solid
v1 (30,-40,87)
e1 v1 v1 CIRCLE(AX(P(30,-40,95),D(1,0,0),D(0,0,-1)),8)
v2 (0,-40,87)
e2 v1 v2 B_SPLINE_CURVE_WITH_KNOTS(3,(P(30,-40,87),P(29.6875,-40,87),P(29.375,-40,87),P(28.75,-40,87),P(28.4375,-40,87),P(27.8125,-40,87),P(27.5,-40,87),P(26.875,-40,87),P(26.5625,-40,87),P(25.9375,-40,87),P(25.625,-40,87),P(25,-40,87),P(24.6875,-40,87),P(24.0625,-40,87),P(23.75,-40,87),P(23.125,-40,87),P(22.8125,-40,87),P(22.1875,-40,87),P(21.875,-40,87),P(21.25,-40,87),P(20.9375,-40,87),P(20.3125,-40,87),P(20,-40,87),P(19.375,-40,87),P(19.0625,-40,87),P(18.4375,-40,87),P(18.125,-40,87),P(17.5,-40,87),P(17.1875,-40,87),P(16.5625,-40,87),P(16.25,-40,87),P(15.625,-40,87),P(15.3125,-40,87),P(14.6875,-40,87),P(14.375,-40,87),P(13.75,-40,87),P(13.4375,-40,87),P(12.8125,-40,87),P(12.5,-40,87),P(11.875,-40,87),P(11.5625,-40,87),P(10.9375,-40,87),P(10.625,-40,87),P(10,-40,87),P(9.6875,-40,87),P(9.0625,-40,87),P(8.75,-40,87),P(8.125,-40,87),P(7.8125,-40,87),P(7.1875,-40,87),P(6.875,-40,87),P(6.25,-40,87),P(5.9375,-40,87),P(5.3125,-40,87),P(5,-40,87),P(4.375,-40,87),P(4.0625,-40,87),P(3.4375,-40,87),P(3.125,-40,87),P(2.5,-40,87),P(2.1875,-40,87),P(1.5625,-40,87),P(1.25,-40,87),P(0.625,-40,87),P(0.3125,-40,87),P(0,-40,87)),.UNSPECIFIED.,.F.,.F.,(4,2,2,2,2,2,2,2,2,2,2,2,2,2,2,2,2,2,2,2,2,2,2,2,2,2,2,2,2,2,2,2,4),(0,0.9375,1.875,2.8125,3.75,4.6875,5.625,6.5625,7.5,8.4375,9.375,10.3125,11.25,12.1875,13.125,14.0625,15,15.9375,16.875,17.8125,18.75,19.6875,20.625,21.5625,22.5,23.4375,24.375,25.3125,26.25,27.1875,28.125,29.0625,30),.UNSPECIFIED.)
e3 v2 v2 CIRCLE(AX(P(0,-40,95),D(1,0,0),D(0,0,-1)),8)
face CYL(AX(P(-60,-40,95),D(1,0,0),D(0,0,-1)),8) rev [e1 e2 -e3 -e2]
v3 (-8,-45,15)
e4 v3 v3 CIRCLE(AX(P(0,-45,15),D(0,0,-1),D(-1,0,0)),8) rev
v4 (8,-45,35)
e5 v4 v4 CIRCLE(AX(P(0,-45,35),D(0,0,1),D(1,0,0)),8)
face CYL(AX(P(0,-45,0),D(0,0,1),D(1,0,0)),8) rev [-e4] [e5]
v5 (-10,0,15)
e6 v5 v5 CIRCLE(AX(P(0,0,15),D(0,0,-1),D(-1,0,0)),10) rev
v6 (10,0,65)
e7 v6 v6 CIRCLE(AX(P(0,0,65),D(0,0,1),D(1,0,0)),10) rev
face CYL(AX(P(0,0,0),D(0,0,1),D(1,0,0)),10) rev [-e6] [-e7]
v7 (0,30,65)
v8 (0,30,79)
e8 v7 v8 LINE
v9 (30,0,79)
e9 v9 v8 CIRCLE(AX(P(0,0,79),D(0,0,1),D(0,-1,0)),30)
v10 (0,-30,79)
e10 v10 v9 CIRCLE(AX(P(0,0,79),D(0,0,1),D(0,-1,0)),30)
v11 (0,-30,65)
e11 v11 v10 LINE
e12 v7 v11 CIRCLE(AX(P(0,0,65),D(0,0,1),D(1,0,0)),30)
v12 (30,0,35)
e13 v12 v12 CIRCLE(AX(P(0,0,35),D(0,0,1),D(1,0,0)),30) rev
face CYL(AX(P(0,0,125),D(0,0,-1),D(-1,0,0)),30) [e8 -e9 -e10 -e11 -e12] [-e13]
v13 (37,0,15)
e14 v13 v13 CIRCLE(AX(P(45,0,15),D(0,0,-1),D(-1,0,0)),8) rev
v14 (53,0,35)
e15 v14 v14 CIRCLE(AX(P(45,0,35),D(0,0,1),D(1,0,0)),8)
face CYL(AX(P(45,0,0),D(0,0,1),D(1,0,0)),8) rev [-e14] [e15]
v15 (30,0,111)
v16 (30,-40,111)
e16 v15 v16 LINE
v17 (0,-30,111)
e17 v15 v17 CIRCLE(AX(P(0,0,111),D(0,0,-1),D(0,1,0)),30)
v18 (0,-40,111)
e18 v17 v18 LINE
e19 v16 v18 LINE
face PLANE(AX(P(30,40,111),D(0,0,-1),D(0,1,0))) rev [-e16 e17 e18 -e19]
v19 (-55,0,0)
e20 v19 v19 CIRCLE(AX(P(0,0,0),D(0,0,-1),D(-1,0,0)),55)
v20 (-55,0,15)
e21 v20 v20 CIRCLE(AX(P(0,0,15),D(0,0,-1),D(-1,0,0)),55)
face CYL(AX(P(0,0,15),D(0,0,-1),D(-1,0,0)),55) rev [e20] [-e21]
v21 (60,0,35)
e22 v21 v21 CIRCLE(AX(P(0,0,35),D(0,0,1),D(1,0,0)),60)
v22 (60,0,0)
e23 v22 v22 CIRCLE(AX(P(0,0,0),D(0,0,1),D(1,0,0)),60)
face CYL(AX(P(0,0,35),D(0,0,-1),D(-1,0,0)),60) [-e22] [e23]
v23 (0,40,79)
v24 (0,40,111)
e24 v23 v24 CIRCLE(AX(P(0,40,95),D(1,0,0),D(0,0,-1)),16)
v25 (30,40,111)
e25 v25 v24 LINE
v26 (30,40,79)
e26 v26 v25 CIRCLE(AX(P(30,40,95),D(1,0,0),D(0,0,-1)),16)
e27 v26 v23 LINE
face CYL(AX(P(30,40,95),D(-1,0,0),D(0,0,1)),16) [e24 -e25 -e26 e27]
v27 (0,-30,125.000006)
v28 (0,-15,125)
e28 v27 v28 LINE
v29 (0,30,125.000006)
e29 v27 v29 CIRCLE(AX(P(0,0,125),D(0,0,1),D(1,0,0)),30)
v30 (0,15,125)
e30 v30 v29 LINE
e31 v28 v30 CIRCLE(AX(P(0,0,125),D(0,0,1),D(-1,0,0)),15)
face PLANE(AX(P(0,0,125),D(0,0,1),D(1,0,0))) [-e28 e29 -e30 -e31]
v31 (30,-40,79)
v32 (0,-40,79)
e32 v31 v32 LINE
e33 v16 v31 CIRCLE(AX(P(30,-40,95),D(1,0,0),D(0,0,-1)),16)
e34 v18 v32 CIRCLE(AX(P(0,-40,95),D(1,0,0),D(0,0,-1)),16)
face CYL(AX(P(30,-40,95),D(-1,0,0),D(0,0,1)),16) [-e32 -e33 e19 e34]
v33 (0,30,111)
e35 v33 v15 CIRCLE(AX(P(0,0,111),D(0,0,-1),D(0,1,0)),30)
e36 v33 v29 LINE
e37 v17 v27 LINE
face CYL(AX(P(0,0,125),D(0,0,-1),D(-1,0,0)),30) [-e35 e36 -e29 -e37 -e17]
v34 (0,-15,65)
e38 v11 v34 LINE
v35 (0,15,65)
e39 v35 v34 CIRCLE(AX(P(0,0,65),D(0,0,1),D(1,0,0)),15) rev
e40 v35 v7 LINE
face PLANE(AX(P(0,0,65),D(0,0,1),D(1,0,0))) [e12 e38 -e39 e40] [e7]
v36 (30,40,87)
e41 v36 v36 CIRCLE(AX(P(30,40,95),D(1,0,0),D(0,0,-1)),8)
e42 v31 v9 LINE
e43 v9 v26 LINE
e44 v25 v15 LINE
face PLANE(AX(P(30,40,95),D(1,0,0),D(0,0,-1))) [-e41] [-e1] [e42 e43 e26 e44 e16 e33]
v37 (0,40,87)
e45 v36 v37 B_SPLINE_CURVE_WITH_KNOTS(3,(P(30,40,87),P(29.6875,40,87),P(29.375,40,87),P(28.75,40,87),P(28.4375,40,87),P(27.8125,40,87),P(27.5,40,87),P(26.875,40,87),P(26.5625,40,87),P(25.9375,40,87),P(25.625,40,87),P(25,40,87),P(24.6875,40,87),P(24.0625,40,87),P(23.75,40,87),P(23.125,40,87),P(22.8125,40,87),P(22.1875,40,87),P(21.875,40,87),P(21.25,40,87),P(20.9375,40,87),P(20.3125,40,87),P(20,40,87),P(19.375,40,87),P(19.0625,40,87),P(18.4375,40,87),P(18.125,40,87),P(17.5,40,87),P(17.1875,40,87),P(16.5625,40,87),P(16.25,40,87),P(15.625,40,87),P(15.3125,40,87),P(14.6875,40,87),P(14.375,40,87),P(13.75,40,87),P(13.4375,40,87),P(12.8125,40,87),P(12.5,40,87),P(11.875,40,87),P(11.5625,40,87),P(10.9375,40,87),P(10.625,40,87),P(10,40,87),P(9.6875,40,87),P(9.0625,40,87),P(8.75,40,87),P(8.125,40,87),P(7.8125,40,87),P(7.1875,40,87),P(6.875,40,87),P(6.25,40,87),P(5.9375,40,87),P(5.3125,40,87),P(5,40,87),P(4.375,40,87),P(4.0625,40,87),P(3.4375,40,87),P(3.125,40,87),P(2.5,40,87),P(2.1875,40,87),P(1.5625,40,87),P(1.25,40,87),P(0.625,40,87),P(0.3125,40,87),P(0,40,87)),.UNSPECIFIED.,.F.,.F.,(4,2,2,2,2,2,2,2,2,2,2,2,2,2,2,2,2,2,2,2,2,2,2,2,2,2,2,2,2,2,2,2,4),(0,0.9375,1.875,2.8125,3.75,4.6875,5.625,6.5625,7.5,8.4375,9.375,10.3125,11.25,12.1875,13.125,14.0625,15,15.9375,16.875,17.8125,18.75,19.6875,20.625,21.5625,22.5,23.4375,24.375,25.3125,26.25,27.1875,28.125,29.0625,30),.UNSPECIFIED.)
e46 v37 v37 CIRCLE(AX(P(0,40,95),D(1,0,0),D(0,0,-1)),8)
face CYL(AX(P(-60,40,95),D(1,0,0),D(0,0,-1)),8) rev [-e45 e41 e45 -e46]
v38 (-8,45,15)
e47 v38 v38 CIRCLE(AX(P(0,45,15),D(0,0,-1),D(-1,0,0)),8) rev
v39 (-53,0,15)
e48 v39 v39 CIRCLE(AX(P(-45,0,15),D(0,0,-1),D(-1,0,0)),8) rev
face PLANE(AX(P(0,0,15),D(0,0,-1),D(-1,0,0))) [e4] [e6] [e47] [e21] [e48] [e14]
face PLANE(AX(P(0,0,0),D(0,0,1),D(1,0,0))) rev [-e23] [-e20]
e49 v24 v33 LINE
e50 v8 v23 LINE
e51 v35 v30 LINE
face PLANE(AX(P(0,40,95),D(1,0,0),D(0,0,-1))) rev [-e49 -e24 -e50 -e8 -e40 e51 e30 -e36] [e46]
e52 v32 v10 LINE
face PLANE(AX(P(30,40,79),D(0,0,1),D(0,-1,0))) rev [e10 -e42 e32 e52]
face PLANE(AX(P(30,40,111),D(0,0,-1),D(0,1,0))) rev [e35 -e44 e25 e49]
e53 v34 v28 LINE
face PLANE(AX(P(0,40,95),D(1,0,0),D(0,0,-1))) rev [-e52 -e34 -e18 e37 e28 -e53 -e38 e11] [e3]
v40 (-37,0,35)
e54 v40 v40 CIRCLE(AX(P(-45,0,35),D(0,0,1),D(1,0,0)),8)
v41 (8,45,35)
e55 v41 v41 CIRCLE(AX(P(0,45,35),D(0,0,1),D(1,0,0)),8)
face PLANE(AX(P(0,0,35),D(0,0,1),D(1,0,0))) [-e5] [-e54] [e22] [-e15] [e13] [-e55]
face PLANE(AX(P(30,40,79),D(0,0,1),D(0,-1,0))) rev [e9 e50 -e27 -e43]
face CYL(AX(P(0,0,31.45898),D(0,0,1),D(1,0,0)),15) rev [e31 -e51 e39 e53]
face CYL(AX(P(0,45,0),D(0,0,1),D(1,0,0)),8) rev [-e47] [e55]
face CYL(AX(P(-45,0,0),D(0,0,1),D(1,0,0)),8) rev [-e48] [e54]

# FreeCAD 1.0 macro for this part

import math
import FreeCAD as App
import Part
import Sketcher

V = App.Vector
Q = App.Units.Quantity

doc = App.newDocument("Part")
body = doc.addObject("PartDesign::Body", "Body")

sketch1 = doc.addObject("Sketcher::SketchObject", "Sketch")
body.addObject(sketch1)
sketch1.AttachmentSupport = (doc.XY_Plane, [""])
sketch1.MapMode = "FlatFace"
sketch1.addGeometry(Part.Circle(V(0, 0, 0), V(0, 0, 1), 60), False)
sketch1.addConstraint([
    Sketcher.Constraint("Coincident", 0, 3, -1, 1),
    Sketcher.Constraint("Diameter", 0, Q("120 mm")),
])
pad1 = doc.addObject("PartDesign::Pad", "Pad")
body.addObject(pad1)
pad1.Profile = sketch1
pad1.Length = 35

sketch2 = doc.addObject("Sketcher::SketchObject", "Sketch001")
body.addObject(sketch2)
sketch2.AttachmentSupport = (doc.XY_Plane, [""])
sketch2.MapMode = "FlatFace"
sketch2.addGeometry(Part.Circle(V(0, 0, 0), V(0, 0, 1), 30), False)
sketch2.addConstraint([
    Sketcher.Constraint("Coincident", 0, 3, -1, 1),
    Sketcher.Constraint("Diameter", 0, Q("60 mm")),
])
pad2 = doc.addObject("PartDesign::Pad", "Pad001")
body.addObject(pad2)
pad2.Profile = sketch2
pad2.Length = 125

sketch3 = doc.addObject("Sketcher::SketchObject", "Sketch002")
body.addObject(sketch3)
sketch3.AttachmentSupport = (doc.YZ_Plane, [""])
sketch3.MapMode = "FlatFace"
sketch3.addGeometry([
    Part.LineSegment(V(-40, 79, 0), V(40, 79, 0)),
    Part.ArcOfCircle(Part.Circle(V(40, 95, 0), V(0, 0, 1), 16), math.radians(-90), math.radians(90)),
    Part.LineSegment(V(40, 111, 0), V(-40, 111, 0)),
    Part.ArcOfCircle(Part.Circle(V(-40, 95, 0), V(0, 0, 1), 16), math.radians(90), math.radians(270)),
], False)
sketch3.addConstraint([
    Sketcher.Constraint("Tangent", 0, 2, 1, 1),
    Sketcher.Constraint("Tangent", 1, 2, 2, 1),
    Sketcher.Constraint("Tangent", 2, 2, 3, 1),
    Sketcher.Constraint("Tangent", 3, 2, 0, 1),
    Sketcher.Constraint("Horizontal", 0),
    Sketcher.Constraint("Horizontal", 2),
    Sketcher.Constraint("Radius", 1, Q("16 mm")),
    Sketcher.Constraint("DistanceX", 0, 1, 0, 2, Q("80 mm")),
    Sketcher.Constraint("DistanceX", -1, 1, 1, 3, Q("40 mm")),
    Sketcher.Constraint("DistanceY", -1, 1, 1, 3, Q("95 mm")),
])
pad3 = doc.addObject("PartDesign::Pad", "Pad002")
body.addObject(pad3)
pad3.Profile = sketch3
pad3.Length = 30

sketch4 = doc.addObject("Sketcher::SketchObject", "Sketch003")
body.addObject(sketch4)
sketch4.AttachmentSupport = (doc.XY_Plane, [""])
sketch4.MapMode = "FlatFace"
sketch4.AttachmentOffset = App.Placement(V(0, 0, 125), App.Rotation())
sketch4.addGeometry(Part.Circle(V(0, 0, 0), V(0, 0, 1), 10), False)
sketch4.addConstraint([
    Sketcher.Constraint("Coincident", 0, 3, -1, 1),
    Sketcher.Constraint("Diameter", 0, Q("20 mm")),
])
pocket1 = doc.addObject("PartDesign::Pocket", "Pocket")
body.addObject(pocket1)
pocket1.Profile = sketch4
pocket1.Type = "ThroughAll"
pocket1.Midplane = True

sketch5 = doc.addObject("Sketcher::SketchObject", "Sketch004")
body.addObject(sketch5)
sketch5.AttachmentSupport = (doc.XY_Plane, [""])
sketch5.MapMode = "FlatFace"
sketch5.AttachmentOffset = App.Placement(V(0, 0, 125), App.Rotation())
sketch5.addGeometry([
    Part.LineSegment(V(0, -30, 0), V(0, 30, 0)),
    Part.ArcOfCircle(Part.Circle(V(0, 0, 0), V(0, 0, 1), 30), math.radians(90), math.radians(270)),
], False)
sketch5.addConstraint([
    Sketcher.Constraint("Coincident", 0, 1, 1, 2),
    Sketcher.Constraint("Coincident", 1, 1, 0, 2),
    Sketcher.Constraint("Vertical", 0),
    Sketcher.Constraint("Coincident", 1, 3, -1, 1),
    Sketcher.Constraint("PointOnObject", 0, 1, -2),
    Sketcher.Constraint("Radius", 1, Q("30 mm")),
])
pocket2 = doc.addObject("PartDesign::Pocket", "Pocket001")
body.addObject(pocket2)
pocket2.Profile = sketch5
pocket2.Type = "TwoLengths"
pocket2.Length = 152.079449
pocket2.Length2 = 60
pocket2.Reversed = True

sketch6 = doc.addObject("Sketcher::SketchObject", "Sketch005")
body.addObject(sketch6)
sketch6.AttachmentSupport = (doc.XY_Plane, [""])
sketch6.MapMode = "FlatFace"
sketch6.AttachmentOffset = App.Placement(V(0, 0, 125), App.Rotation())
sketch6.addGeometry([
    Part.LineSegment(V(0, 15, 0), V(0, 10, 0)),
    Part.ArcOfCircle(Part.Circle(V(0, 0, 0), V(0, 0, 1), 10), math.radians(-90), math.radians(90)),
    Part.LineSegment(V(0, -10, 0), V(0, -15, 0)),
    Part.ArcOfCircle(Part.Circle(V(0, 0, 0), V(0, 0, 1), 15), math.radians(-90), math.radians(90)),
], False)
sketch6.addConstraint([
    Sketcher.Constraint("Coincident", 0, 2, 1, 2),
    Sketcher.Constraint("Coincident", 1, 1, 2, 1),
    Sketcher.Constraint("Coincident", 2, 2, 3, 1),
    Sketcher.Constraint("Coincident", 3, 2, 0, 1),
    Sketcher.Constraint("Vertical", 0),
    Sketcher.Constraint("Vertical", 2),
    Sketcher.Constraint("Coincident", 1, 3, -1, 1),
    Sketcher.Constraint("Coincident", 3, 3, -1, 1),
    Sketcher.Constraint("PointOnObject", 0, 2, -2),
    Sketcher.Constraint("PointOnObject", 1, 1, -2),
    Sketcher.Constraint("Radius", 1, Q("10 mm")),
    Sketcher.Constraint("Radius", 3, Q("15 mm")),
])
pocket3 = doc.addObject("PartDesign::Pocket", "Pocket002")
body.addObject(pocket3)
pocket3.Profile = sketch6
pocket3.Length = 60

sketch7 = doc.addObject("Sketcher::SketchObject", "Sketch006")
body.addObject(sketch7)
sketch7.AttachmentSupport = (doc.YZ_Plane, [""])
sketch7.MapMode = "FlatFace"
sketch7.AttachmentOffset = App.Placement(V(0, 0, 30), App.Rotation())
sketch7.addGeometry([
    Part.Circle(V(-40, 95, 0), V(0, 0, 1), 8),
    Part.Circle(V(40, 95, 0), V(0, 0, 1), 8),
], False)
sketch7.addConstraint([
    Sketcher.Constraint("Equal", 0, 1),
    Sketcher.Constraint("Symmetric", 0, 3, 1, 3, -2),
    Sketcher.Constraint("Diameter", 0, Q("16 mm")),
    Sketcher.Constraint("DistanceX", 0, 3, -1, 1, Q("40 mm")),
    Sketcher.Constraint("DistanceY", -1, 1, 0, 3, Q("95 mm")),
])
pocket4 = doc.addObject("PartDesign::Pocket", "Pocket003")
body.addObject(pocket4)
pocket4.Profile = sketch7
pocket4.Type = "ThroughAll"

sketch8 = doc.addObject("Sketcher::SketchObject", "Sketch007")
body.addObject(sketch8)
sketch8.AttachmentSupport = (doc.XY_Plane, [""])
sketch8.MapMode = "FlatFace"
sketch8.AttachmentOffset = App.Placement(V(0, 0, 35), App.Rotation())
sketch8.addGeometry([
    Part.Circle(V(-45, 0, 0), V(0, 0, 1), 8),
    Part.Circle(V(0, 45, 0), V(0, 0, 1), 8),
    Part.Circle(V(45, 0, 0), V(0, 0, 1), 8),
    Part.Circle(V(0, -45, 0), V(0, 0, 1), 8),
], False)
sketch8.addConstraint([
    Sketcher.Constraint("Equal", 0, 1),
    Sketcher.Constraint("Equal", 1, 2),
    Sketcher.Constraint("Equal", 2, 3),
    Sketcher.Constraint("Symmetric", 0, 3, 2, 3, -1, 1),
    Sketcher.Constraint("Symmetric", 1, 3, 3, 3, -1, 1),
    Sketcher.Constraint("PointOnObject", 0, 3, -1),
    Sketcher.Constraint("PointOnObject", 1, 3, -2),
    Sketcher.Constraint("Diameter", 0, Q("16 mm")),
    Sketcher.Constraint("DistanceX", 0, 3, -1, 1, Q("45 mm")),
    Sketcher.Constraint("DistanceY", -1, 1, 1, 3, Q("45 mm")),
])
pocket5 = doc.addObject("PartDesign::Pocket", "Pocket004")
body.addObject(pocket5)
pocket5.Profile = sketch8
pocket5.Type = "ThroughAll"

sketch9 = doc.addObject("Sketcher::SketchObject", "Sketch008")
body.addObject(sketch9)
sketch9.AttachmentSupport = (doc.XY_Plane, [""])
sketch9.MapMode = "FlatFace"
sketch9.addGeometry(Part.Circle(V(0, 0, 0), V(0, 0, 1), 55), False)
sketch9.addConstraint([
    Sketcher.Constraint("Coincident", 0, 3, -1, 1),
    Sketcher.Constraint("Diameter", 0, Q("110 mm")),
])
pocket6 = doc.addObject("PartDesign::Pocket", "Pocket005")
body.addObject(pocket6)
pocket6.Profile = sketch9
pocket6.Length = 15
pocket6.Reversed = True

doc.recompute()
